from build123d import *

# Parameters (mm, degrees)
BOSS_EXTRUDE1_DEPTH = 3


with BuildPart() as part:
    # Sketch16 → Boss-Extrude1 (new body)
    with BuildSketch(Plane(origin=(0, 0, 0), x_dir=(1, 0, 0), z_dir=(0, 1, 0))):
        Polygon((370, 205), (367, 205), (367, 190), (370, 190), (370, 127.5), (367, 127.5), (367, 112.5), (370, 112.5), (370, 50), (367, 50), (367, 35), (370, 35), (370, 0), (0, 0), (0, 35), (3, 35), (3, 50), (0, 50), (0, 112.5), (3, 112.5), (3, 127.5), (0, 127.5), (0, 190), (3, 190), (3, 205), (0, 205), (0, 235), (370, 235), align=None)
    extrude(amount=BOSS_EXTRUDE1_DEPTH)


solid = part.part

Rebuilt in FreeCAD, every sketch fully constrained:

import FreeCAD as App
import Part
import Sketcher

V = App.Vector
Q = App.Units.Quantity


def add_polygon(sketch, points):
    """Adds a closed chain of lines whose ends are joined by coincident constraints."""
    first, n = sketch.GeometryCount, len(points)
    for a, b in zip(points, points[1:] + points[:1]):
        sketch.addGeometry(Part.LineSegment(App.Vector(*a, 0), App.Vector(*b, 0)), False)
    for i in range(n):
        sketch.addConstraint(Sketcher.Constraint("Coincident", first + i, 2, first + (i + 1) % n, 1))

doc = App.newDocument("Part")
body = doc.addObject("PartDesign::Body", "Body")

# Sketch on XZ plane
sketch1 = doc.addObject("Sketcher::SketchObject", "Sketch")
body.addObject(sketch1)
sketch1.AttachmentSupport = (doc.XZ_Plane, [""])
sketch1.MapMode = "FlatFace"
add_polygon(sketch1, [(367, -205), (370, -205), (370, -235), (0, -235), (0, -205), (3, -205), (3, -190), (0, -190), (0, -127.5), (3, -127.5), (3, -112.5), (0, -112.5), (0, -50), (3, -50), (3, -35), (0, -35), (0, 0), (370, 0), (370, -35), (367, -35), (367, -50), (370, -50), (370, -112.5), (367, -112.5), (367, -127.5), (370, -127.5), (370, -190), (367, -190)])  # lines 0-27
sketch1.addConstraint(Sketcher.Constraint("Horizontal", 0))
sketch1.addConstraint(Sketcher.Constraint("Vertical", 1))
sketch1.addConstraint(Sketcher.Constraint("Horizontal", 2))
sketch1.addConstraint(Sketcher.Constraint("Vertical", 3))
sketch1.addConstraint(Sketcher.Constraint("Horizontal", 4))
sketch1.addConstraint(Sketcher.Constraint("Vertical", 5))
sketch1.addConstraint(Sketcher.Constraint("Horizontal", 6))
sketch1.addConstraint(Sketcher.Constraint("Vertical", 7))
sketch1.addConstraint(Sketcher.Constraint("Horizontal", 8))
sketch1.addConstraint(Sketcher.Constraint("Vertical", 9))
sketch1.addConstraint(Sketcher.Constraint("Horizontal", 10))
sketch1.addConstraint(Sketcher.Constraint("Vertical", 11))
sketch1.addConstraint(Sketcher.Constraint("Horizontal", 12))
sketch1.addConstraint(Sketcher.Constraint("Vertical", 13))
sketch1.addConstraint(Sketcher.Constraint("Horizontal", 14))
sketch1.addConstraint(Sketcher.Constraint("Vertical", 15))
sketch1.addConstraint(Sketcher.Constraint("Horizontal", 16))
sketch1.addConstraint(Sketcher.Constraint("Vertical", 17))
sketch1.addConstraint(Sketcher.Constraint("Horizontal", 18))
sketch1.addConstraint(Sketcher.Constraint("Vertical", 19))
sketch1.addConstraint(Sketcher.Constraint("Horizontal", 20))
sketch1.addConstraint(Sketcher.Constraint("Vertical", 21))
sketch1.addConstraint(Sketcher.Constraint("Horizontal", 22))
sketch1.addConstraint(Sketcher.Constraint("Vertical", 23))
sketch1.addConstraint(Sketcher.Constraint("Horizontal", 24))
sketch1.addConstraint(Sketcher.Constraint("Vertical", 25))
sketch1.addConstraint(Sketcher.Constraint("Horizontal", 26))
sketch1.addConstraint(Sketcher.Constraint("Vertical", 27))
sketch1.addConstraint(Sketcher.Constraint("Coincident", 15, 2, -1, 1))
sketch1.addConstraint(Sketcher.Constraint("PointOnObject", 2, 2, -2))
sketch1.addConstraint(Sketcher.Constraint("PointOnObject", 6, 2, -2))
sketch1.addConstraint(Sketcher.Constraint("PointOnObject", 10, 2, -2))
sketch1.addConstraint(Sketcher.Constraint("Horizontal", 0, 2, 3, 2))
sketch1.addConstraint(Sketcher.Constraint("Horizontal", 14, 2, 17, 2))
sketch1.addConstraint(Sketcher.Constraint("Horizontal", 12, 2, 19, 2))
sketch1.addConstraint(Sketcher.Constraint("Horizontal", 10, 2, 21, 2))
sketch1.addConstraint(Sketcher.Constraint("Horizontal", 8, 2, 23, 2))
sketch1.addConstraint(Sketcher.Constraint("Horizontal", 6, 2, 25, 2))
sketch1.addConstraint(Sketcher.Constraint("Vertical", 5, 2, 8, 2))
sketch1.addConstraint(Sketcher.Constraint("Vertical", 9, 2, 12, 2))
sketch1.addConstraint(Sketcher.Constraint("Vertical", 1, 2, 16, 2))
sketch1.addConstraint(Sketcher.Constraint("Vertical", 17, 2, 20, 2))
sketch1.addConstraint(Sketcher.Constraint("Vertical", 19, 2, 22, 2))
sketch1.addConstraint(Sketcher.Constraint("Vertical", 21, 2, 24, 2))
sketch1.addConstraint(Sketcher.Constraint("Vertical", 23, 2, 26, 2))
sketch1.addConstraint(Sketcher.Constraint("Equal", 0, 4))
sketch1.addConstraint(Sketcher.Constraint("Equal", 5, 9))
sketch1.addConstraint(Sketcher.Constraint("Equal", 7, 11))
sketch1.addConstraint(Sketcher.Constraint("Equal", 9, 13))
sketch1.addConstraint(Sketcher.Constraint("DistanceX", 0, 1, 0, 2, Q("3 mm")))
sketch1.addConstraint(Sketcher.Constraint("DistanceX", 2, 2, 2, 1, Q("370 mm")))
sketch1.addConstraint(Sketcher.Constraint("DistanceY", 1, 2, 1, 1, Q("30 mm")))
sketch1.addConstraint(Sketcher.Constraint("DistanceY", 5, 1, 5, 2, Q("15 mm")))
sketch1.addConstraint(Sketcher.Constraint("DistanceY", 15, 1, 15, 2, Q("35 mm")))
sketch1.addConstraint(Sketcher.Constraint("DistanceY", 7, 1, 7, 2, Q("62.5 mm")))
pad1 = doc.addObject("PartDesign::Pad", "Pad")
body.addObject(pad1)
pad1.Profile = sketch1
pad1.Length = 3
pad1.Reversed = True

doc.recompute()
